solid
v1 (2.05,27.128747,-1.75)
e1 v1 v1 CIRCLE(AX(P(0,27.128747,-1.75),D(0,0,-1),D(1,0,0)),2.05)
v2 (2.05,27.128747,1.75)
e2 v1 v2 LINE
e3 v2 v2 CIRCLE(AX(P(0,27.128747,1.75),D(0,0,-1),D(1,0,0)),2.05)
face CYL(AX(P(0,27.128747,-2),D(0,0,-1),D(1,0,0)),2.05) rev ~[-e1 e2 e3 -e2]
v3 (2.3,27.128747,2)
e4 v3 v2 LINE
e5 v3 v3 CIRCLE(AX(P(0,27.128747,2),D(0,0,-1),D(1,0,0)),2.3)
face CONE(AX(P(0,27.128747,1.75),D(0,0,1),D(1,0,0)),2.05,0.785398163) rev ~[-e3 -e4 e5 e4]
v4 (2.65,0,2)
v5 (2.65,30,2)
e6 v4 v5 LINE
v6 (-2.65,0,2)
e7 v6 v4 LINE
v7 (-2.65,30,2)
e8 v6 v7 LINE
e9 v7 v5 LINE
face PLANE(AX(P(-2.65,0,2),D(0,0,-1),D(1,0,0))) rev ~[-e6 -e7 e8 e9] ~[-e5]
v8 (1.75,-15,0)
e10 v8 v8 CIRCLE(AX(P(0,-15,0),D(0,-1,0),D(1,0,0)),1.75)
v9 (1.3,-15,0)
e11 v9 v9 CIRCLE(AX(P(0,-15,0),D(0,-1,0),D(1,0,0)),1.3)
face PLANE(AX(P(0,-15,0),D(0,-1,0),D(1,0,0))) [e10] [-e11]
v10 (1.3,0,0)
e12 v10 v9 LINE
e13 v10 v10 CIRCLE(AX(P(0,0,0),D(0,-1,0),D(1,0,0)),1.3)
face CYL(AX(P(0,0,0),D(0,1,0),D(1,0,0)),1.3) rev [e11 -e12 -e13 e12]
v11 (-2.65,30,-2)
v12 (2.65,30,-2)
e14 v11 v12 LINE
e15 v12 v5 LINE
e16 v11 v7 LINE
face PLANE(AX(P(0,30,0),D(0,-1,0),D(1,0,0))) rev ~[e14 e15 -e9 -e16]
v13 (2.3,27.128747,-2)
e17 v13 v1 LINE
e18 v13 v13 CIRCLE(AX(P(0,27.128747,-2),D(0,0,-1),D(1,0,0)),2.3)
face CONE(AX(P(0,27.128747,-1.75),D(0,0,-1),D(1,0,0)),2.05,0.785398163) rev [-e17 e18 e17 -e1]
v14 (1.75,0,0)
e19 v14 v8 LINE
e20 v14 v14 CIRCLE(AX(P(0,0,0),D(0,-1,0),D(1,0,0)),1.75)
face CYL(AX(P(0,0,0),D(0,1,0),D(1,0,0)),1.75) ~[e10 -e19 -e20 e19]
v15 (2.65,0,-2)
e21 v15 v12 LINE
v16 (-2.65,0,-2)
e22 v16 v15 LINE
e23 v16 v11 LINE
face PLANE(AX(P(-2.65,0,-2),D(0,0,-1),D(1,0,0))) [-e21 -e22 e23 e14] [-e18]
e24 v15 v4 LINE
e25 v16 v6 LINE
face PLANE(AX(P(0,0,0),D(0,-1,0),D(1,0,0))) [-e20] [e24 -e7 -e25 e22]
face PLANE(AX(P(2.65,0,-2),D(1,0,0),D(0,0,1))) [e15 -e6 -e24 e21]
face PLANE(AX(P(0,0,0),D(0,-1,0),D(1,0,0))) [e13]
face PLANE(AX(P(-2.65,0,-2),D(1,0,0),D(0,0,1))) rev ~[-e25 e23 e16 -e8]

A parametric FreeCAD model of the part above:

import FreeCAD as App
import Part
import Sketcher

V = App.Vector


def edges_at(feature, points):
    """Names of the edges that pass closest to the given points."""
    edges = feature.Shape.Edges
    near = lambda p: min(range(len(edges)), key=lambda i: edges[i].distToShape(Part.Vertex(*p))[0])
    return sorted({f"Edge{near(p) + 1}" for p in points})

doc = App.newDocument("Part")
body = doc.addObject("PartDesign::Body", "Body")

sketch1 = body.newObject("Sketcher::SketchObject", "Sketch")
sketch1.AttachmentSupport = (doc.getObject("XZ_Plane"), [""])
sketch1.MapMode = "FlatFace"
sketch1.addGeometry([
    Part.LineSegment(V(-2.6, 2, 0), V(-2.6, -2, 0)),
    Part.LineSegment(V(-2.6, -2, 0), V(2.6, -2, 0)),
    Part.LineSegment(V(2.6, -2, 0), V(2.6, 2, 0)),
    Part.LineSegment(V(2.6, 2, 0), V(-2.6, 2, 0)),
], False)
sketch1.addConstraint([
    Sketcher.Constraint("Coincident", 0, 2, 1, 1),
    Sketcher.Constraint("Coincident", 1, 2, 2, 1),
    Sketcher.Constraint("Coincident", 2, 2, 3, 1),
    Sketcher.Constraint("Coincident", 3, 2, 0, 1),
    Sketcher.Constraint("Vertical", 0),
    Sketcher.Constraint("Horizontal", 1),
    Sketcher.Constraint("Vertical", 2),
    Sketcher.Constraint("Horizontal", 3),
    Sketcher.Constraint("Symmetric", 0, 2, 2, 2, -1, 1),
    Sketcher.Constraint("DistanceY", 0, 2, 0, 1, 4.0),
    Sketcher.Constraint("DistanceX", 1, 1, 1, 2, 5.3),
])
pad1 = body.newObject("PartDesign::Pad", "Pad")
pad1.Profile = sketch1
pad1.Length = 30
pad1.Reversed = True

sketch2 = body.newObject("Sketcher::SketchObject", "Sketch001")
sketch2.AttachmentSupport = (doc.getObject("XZ_Plane"), [""])
sketch2.MapMode = "FlatFace"
sketch2.addGeometry([
    Part.Circle(V(0, 0, 0), V(0, 0, 1), 1.8),
    Part.Circle(V(0, 0, 0), V(0, 0, 1), 1.3),
], False)
sketch2.addConstraint([
    Sketcher.Constraint("Coincident", 0, 3, -1, 1),
    Sketcher.Constraint("Coincident", 1, 3, -1, 1),
    Sketcher.Constraint("Diameter", 0, 3.5),
    Sketcher.Constraint("Diameter", 1, 2.6),
])
pad2 = body.newObject("PartDesign::Pad", "Pad001")
pad2.Profile = sketch2
pad2.Length = 15

sketch3 = body.newObject("Sketcher::SketchObject", "Sketch002")
sketch3.AttachmentSupport = (doc.getObject("XZ_Plane"), [""])
sketch3.MapMode = "FlatFace"
sketch3.addGeometry(Part.Circle(V(0, 0, 0), V(0, 0, 1), 1.3), False)
sketch3.addConstraint([
    Sketcher.Constraint("Coincident", 0, 3, -1, 1),
    Sketcher.Constraint("Diameter", 0, 2.6),
])
pad3 = body.newObject("PartDesign::Pad", "Pad002")
pad3.Profile = sketch3
pad3.Length = 25.8
pad3.Reversed = True

sketch4 = body.newObject("Sketcher::SketchObject", "Sketch003")
sketch4.AttachmentSupport = (doc.getObject("XY_Plane"), [""])
sketch4.MapMode = "FlatFace"
sketch4.AttachmentOffset = App.Placement(V(0, 0, -2), App.Rotation())
sketch4.addGeometry(Part.Circle(V(0, 27.1, 0), V(0, 0, 1), 2), False)
sketch4.addConstraint([
    Sketcher.Constraint("PointOnObject", 0, 3, -2),
    Sketcher.Constraint("Diameter", 0, 4.1),
    Sketcher.Constraint("DistanceY", -1, 1, 0, 3, 27.128747),
])
pocket1 = body.newObject("PartDesign::Pocket", "Pocket")
pocket1.Profile = sketch4
pocket1.Length = 5
pocket1.Reversed = True
doc.recompute()

chamfer = body.newObject("PartDesign::Chamfer", "Chamfer")
chamfer.Base = (pocket1, edges_at(pocket1, [(-2.05, 27.129, -2), (-2.05, 27.129, 2)]))
chamfer.Size = 0.25

doc.recompute()
